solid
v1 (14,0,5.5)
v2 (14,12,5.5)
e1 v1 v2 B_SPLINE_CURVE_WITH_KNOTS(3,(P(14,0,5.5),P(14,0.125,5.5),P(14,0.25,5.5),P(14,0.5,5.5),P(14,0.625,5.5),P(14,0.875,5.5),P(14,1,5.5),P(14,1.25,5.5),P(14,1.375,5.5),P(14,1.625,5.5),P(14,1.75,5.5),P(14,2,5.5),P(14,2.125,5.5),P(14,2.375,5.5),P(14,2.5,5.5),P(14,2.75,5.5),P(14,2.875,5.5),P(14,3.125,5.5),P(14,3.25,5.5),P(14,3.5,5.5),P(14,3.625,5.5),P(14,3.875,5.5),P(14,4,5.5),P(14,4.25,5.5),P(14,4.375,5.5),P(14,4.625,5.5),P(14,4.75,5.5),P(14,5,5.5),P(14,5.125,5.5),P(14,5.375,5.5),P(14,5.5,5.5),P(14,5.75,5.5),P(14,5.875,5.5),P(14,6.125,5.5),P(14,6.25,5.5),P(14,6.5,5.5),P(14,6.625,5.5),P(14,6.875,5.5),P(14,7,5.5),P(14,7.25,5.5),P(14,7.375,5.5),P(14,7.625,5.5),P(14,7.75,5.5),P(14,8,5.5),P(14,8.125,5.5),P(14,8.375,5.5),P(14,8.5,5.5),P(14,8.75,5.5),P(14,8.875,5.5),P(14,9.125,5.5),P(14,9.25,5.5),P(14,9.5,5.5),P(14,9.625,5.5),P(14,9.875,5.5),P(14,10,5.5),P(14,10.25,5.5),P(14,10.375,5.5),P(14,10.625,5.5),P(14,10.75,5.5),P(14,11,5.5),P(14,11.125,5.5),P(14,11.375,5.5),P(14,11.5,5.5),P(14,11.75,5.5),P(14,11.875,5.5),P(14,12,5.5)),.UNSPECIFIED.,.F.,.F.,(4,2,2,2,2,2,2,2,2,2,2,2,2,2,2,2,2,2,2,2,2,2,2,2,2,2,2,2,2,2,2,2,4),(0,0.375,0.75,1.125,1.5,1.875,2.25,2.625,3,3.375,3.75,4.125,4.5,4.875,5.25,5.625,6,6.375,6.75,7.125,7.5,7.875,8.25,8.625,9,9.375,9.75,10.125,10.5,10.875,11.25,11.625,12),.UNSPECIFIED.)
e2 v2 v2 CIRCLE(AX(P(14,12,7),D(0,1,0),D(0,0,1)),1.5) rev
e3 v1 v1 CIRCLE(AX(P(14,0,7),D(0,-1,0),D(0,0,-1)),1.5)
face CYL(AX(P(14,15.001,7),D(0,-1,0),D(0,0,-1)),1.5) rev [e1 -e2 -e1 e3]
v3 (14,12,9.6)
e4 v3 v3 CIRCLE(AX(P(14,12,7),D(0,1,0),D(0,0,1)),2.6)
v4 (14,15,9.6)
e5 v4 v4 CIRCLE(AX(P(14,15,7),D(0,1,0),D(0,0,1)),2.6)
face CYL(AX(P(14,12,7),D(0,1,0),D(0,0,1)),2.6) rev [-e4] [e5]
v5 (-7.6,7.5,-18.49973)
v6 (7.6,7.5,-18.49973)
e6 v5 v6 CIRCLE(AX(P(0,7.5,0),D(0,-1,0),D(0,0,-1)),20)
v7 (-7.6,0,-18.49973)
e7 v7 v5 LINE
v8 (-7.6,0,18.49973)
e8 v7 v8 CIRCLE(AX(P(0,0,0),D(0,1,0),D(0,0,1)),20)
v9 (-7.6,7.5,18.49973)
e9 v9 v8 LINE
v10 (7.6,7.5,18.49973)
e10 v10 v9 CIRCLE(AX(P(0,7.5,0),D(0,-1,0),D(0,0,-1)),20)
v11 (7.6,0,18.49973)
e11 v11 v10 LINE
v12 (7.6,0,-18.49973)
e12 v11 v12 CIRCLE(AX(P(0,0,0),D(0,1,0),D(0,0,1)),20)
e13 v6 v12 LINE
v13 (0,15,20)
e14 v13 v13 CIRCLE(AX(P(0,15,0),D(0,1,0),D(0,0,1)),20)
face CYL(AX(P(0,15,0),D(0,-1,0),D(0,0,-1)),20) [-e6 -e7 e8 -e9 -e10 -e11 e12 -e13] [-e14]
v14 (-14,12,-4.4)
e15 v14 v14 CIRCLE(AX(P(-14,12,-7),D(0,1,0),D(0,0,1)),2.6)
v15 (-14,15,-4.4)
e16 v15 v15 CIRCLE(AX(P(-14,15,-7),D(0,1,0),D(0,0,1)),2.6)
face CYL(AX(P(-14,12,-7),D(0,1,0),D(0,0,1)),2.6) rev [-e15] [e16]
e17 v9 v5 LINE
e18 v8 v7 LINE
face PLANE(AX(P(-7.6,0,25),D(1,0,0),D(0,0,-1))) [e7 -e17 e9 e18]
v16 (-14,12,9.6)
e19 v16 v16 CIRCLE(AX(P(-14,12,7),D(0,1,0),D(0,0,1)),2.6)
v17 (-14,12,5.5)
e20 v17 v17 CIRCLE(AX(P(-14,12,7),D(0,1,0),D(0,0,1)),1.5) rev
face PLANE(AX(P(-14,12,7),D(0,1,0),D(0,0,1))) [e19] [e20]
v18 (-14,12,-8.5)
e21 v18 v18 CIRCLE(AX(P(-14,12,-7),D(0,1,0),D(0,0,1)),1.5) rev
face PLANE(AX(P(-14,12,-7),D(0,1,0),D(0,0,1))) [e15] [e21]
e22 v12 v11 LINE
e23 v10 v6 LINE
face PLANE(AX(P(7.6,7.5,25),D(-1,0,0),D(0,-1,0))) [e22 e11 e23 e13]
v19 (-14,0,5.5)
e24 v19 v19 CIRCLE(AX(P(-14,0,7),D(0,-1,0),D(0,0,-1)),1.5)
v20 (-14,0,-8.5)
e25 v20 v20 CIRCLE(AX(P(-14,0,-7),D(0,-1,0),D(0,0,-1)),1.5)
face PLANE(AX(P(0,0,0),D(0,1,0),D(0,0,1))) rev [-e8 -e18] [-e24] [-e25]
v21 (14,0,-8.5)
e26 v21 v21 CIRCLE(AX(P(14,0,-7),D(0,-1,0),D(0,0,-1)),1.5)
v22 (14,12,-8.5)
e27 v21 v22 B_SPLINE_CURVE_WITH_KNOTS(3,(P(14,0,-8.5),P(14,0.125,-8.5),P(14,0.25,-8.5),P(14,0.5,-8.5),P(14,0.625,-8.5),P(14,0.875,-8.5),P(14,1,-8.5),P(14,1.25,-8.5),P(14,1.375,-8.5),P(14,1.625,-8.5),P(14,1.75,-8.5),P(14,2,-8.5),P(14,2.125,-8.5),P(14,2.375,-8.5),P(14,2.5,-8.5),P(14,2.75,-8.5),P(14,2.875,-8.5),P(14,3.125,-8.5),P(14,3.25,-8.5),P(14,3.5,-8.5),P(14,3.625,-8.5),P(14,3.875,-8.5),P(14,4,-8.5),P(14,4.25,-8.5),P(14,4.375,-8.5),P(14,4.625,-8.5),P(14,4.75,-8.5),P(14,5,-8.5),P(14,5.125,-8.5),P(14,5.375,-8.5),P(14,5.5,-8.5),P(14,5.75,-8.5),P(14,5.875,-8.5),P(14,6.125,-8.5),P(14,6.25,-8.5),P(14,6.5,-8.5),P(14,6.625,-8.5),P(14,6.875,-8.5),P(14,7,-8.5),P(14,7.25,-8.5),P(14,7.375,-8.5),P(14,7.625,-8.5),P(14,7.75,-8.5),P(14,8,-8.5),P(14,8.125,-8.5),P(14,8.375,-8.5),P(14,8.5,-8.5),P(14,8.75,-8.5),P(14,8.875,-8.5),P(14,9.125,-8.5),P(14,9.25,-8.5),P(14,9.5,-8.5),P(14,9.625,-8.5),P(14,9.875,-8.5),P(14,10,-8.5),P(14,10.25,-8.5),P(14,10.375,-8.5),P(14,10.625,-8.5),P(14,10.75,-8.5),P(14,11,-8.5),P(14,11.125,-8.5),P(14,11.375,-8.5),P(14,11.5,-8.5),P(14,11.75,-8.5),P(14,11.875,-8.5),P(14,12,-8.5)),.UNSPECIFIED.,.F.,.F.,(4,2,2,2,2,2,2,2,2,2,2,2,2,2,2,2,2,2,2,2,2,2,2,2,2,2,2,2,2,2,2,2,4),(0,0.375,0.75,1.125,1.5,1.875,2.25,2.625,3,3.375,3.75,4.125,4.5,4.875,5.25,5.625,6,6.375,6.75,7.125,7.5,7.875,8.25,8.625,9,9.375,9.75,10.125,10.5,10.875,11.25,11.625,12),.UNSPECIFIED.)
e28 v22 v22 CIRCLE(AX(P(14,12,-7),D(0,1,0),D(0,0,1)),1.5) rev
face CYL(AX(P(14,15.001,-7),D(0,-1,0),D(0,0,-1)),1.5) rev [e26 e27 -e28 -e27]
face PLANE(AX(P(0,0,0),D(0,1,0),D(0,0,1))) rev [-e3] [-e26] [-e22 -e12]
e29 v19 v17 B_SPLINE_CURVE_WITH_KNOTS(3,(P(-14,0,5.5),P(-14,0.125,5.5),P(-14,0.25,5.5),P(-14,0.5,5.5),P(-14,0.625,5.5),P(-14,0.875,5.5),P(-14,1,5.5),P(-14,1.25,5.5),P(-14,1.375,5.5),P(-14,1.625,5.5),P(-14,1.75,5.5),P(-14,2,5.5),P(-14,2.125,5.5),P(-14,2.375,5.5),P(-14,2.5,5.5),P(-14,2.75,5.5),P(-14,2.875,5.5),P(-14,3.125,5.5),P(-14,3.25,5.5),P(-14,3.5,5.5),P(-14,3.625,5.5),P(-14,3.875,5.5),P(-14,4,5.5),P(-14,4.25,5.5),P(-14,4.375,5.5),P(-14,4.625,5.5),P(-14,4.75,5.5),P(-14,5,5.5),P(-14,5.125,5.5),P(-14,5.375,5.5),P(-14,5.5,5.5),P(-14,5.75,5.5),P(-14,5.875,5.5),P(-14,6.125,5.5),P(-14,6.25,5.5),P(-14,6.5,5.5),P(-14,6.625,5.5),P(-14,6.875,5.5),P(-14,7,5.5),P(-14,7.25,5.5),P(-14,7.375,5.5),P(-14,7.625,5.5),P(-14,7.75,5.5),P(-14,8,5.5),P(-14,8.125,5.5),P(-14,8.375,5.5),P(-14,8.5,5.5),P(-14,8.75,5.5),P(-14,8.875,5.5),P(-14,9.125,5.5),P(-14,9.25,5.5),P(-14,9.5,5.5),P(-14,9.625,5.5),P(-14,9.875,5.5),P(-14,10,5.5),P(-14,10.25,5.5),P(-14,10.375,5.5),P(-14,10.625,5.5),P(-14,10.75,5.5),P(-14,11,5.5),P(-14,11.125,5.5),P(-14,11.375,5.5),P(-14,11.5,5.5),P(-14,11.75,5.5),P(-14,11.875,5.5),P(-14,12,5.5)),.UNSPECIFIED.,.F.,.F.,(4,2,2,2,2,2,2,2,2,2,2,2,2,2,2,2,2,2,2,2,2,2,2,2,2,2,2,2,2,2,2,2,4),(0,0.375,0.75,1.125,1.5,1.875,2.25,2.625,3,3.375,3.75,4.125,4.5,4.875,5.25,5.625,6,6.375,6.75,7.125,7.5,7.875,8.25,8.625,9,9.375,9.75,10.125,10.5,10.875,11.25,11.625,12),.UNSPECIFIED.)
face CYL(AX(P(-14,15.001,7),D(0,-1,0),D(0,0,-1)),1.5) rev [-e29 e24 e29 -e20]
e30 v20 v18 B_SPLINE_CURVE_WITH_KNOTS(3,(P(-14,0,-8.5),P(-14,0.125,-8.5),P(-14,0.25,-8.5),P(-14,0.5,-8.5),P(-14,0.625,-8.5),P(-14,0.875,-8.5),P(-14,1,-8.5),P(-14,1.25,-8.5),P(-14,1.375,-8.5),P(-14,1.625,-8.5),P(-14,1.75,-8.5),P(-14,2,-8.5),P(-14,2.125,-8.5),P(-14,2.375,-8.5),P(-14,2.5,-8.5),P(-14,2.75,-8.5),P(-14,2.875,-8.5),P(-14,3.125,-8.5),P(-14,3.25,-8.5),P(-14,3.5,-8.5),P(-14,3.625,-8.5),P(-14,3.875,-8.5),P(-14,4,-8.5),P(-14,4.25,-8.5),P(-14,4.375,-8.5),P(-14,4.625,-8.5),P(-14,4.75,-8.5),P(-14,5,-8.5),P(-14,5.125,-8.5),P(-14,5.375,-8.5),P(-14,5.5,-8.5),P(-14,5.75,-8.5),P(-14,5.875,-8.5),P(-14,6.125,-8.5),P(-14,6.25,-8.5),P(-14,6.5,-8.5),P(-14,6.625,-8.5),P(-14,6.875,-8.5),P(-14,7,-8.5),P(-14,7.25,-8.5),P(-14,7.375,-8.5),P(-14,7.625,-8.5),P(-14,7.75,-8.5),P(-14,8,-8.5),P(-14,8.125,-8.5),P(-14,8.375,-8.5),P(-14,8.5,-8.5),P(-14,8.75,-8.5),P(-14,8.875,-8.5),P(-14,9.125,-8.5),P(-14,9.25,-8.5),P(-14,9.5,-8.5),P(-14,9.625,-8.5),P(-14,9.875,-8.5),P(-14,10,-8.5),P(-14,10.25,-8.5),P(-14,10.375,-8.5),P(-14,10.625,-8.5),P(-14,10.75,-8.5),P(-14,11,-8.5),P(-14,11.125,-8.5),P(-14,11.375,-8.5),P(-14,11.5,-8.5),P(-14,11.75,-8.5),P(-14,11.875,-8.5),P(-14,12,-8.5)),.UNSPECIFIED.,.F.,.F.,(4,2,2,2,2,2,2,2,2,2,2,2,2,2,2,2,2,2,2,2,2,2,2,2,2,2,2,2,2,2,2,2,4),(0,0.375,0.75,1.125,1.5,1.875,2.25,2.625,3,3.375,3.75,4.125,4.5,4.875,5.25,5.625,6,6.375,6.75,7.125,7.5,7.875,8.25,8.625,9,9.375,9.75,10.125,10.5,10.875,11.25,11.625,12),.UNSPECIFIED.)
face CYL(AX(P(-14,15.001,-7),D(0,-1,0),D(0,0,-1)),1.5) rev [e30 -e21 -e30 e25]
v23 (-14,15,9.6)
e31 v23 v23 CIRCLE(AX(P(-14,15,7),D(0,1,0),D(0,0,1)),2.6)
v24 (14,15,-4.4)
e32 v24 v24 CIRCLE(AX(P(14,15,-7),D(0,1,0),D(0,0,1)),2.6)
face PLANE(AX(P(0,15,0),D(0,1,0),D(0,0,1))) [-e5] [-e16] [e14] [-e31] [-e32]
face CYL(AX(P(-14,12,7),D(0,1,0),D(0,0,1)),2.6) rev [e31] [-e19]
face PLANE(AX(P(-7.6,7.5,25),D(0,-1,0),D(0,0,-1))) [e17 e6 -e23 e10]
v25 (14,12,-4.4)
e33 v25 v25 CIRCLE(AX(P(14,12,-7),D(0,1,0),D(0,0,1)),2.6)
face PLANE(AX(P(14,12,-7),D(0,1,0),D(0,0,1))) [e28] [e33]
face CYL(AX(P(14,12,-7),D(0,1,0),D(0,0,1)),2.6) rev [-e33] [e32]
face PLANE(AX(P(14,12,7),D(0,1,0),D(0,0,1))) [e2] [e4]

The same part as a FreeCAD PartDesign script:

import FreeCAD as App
import Part
import Sketcher

V = App.Vector

doc = App.newDocument("Part")
body = doc.addObject("PartDesign::Body", "Body")

# Sketch on XZ plane
sketch1 = doc.addObject("Sketcher::SketchObject", "Sketch")
body.addObject(sketch1)
sketch1.AttachmentSupport = (doc.XZ_Plane, [""])
sketch1.MapMode = "FlatFace"
sketch1.addGeometry(Part.Circle(V(0, 0, 0), V(0, 0, 1), 20), False)
sketch1.addConstraint([
    Sketcher.Constraint("Coincident", 0, 3, -1, 1),
    Sketcher.Constraint("Diameter", 0, 40.0),
])
pad1 = doc.addObject("PartDesign::Pad", "Pad")
body.addObject(pad1)
pad1.Profile = sketch1
pad1.Length = 15
pad1.Reversed = True

# Sketch on XY plane
sketch2 = doc.addObject("Sketcher::SketchObject", "Sketch001")
body.addObject(sketch2)
sketch2.AttachmentSupport = (doc.XY_Plane, [""])
sketch2.MapMode = "FlatFace"
sketch2.addGeometry([
    Part.LineSegment(V(-7.6, 7.5, 0), V(-7.6, 0, 0)),
    Part.LineSegment(V(-7.6, 0, 0), V(7.6, 0, 0)),
    Part.LineSegment(V(7.6, 0, 0), V(7.6, 7.5, 0)),
    Part.LineSegment(V(7.6, 7.5, 0), V(-7.6, 7.5, 0)),
], False)
sketch2.addConstraint([
    Sketcher.Constraint("Coincident", 0, 2, 1, 1),
    Sketcher.Constraint("Coincident", 1, 2, 2, 1),
    Sketcher.Constraint("Coincident", 2, 2, 3, 1),
    Sketcher.Constraint("Coincident", 3, 2, 0, 1),
    Sketcher.Constraint("Vertical", 0),
    Sketcher.Constraint("Horizontal", 1),
    Sketcher.Constraint("Vertical", 2),
    Sketcher.Constraint("Horizontal", 3),
    Sketcher.Constraint("Symmetric", 0, 2, 1, 2, -1, 1),
    Sketcher.Constraint("DistanceX", 1, 1, 1, 2, 15.2),
    Sketcher.Constraint("DistanceY", 0, 2, 0, 1, 7.5),
])
pocket1 = doc.addObject("PartDesign::Pocket", "Pocket")
body.addObject(pocket1)
pocket1.Profile = sketch2
pocket1.Type = "ThroughAll"
pocket1.Midplane = True

# Sketch on XZ plane
sketch3 = doc.addObject("Sketcher::SketchObject", "Sketch002")
body.addObject(sketch3)
sketch3.AttachmentSupport = (doc.XZ_Plane, [""])
sketch3.MapMode = "FlatFace"
sketch3.addGeometry(Part.Circle(V(-14, 7, 0), V(0, 0, 1), 1.5), False)
sketch3.addConstraint([
    Sketcher.Constraint("Diameter", 0, 3.0),
    Sketcher.Constraint("DistanceX", 0, 3, -1, 1, 14.0),
    Sketcher.Constraint("DistanceY", -1, 1, 0, 3, 7.0),
])
pocket2 = doc.addObject("PartDesign::Pocket", "Pocket001")
body.addObject(pocket2)
pocket2.Profile = sketch3
pocket2.Type = "UpToFirst"

# Sketch on XZ plane
sketch4 = doc.addObject("Sketcher::SketchObject", "Sketch003")
body.addObject(sketch4)
sketch4.AttachmentSupport = (doc.XZ_Plane, [""])
sketch4.MapMode = "FlatFace"
sketch4.addGeometry(Part.Circle(V(-14, -7, 0), V(0, 0, 1), 1.5), False)
sketch4.addConstraint([
    Sketcher.Constraint("Diameter", 0, 3.0),
    Sketcher.Constraint("DistanceX", 0, 3, -1, 1, 14.0),
    Sketcher.Constraint("DistanceY", 0, 3, -1, 1, 7.0),
])
pocket3 = doc.addObject("PartDesign::Pocket", "Pocket002")
body.addObject(pocket3)
pocket3.Profile = sketch4
pocket3.Type = "UpToFirst"

# Sketch on XZ plane
sketch5 = doc.addObject("Sketcher::SketchObject", "Sketch004")
body.addObject(sketch5)
sketch5.AttachmentSupport = (doc.XZ_Plane, [""])
sketch5.MapMode = "FlatFace"
sketch5.addGeometry(Part.Circle(V(14, 7, 0), V(0, 0, 1), 1.5), False)
sketch5.addConstraint([
    Sketcher.Constraint("Diameter", 0, 3.0),
    Sketcher.Constraint("DistanceX", -1, 1, 0, 3, 14.0),
    Sketcher.Constraint("DistanceY", -1, 1, 0, 3, 7.0),
])
pocket4 = doc.addObject("PartDesign::Pocket", "Pocket003")
body.addObject(pocket4)
pocket4.Profile = sketch5
pocket4.Type = "UpToFirst"

# Sketch on XZ plane
sketch6 = doc.addObject("Sketcher::SketchObject", "Sketch005")
body.addObject(sketch6)
sketch6.AttachmentSupport = (doc.XZ_Plane, [""])
sketch6.MapMode = "FlatFace"
sketch6.addGeometry(Part.Circle(V(14, -7, 0), V(0, 0, 1), 1.5), False)
sketch6.addConstraint([
    Sketcher.Constraint("Diameter", 0, 3.0),
    Sketcher.Constraint("DistanceX", -1, 1, 0, 3, 14.0),
    Sketcher.Constraint("DistanceY", 0, 3, -1, 1, 7.0),
])
pocket5 = doc.addObject("PartDesign::Pocket", "Pocket004")
body.addObject(pocket5)
pocket5.Profile = sketch6
pocket5.Type = "UpToFirst"

# Sketch on XZ plane
sketch7 = doc.addObject("Sketcher::SketchObject", "Sketch006")
body.addObject(sketch7)
sketch7.AttachmentSupport = (doc.XZ_Plane, [""])
sketch7.MapMode = "FlatFace"
sketch7.AttachmentOffset = App.Placement(V(0, 0, -15), App.Rotation())
sketch7.addGeometry([
    Part.Circle(V(-14, -7, 0), V(0, 0, 1), 2.6),
    Part.Circle(V(-14, 7, 0), V(0, 0, 1), 2.6),
    Part.Circle(V(14, -7, 0), V(0, 0, 1), 2.6),
    Part.Circle(V(14, 7, 0), V(0, 0, 1), 2.6),
], False)
sketch7.addConstraint([
    Sketcher.Constraint("Equal", 0, 1),
    Sketcher.Constraint("Equal", 1, 2),
    Sketcher.Constraint("Equal", 2, 3),
    Sketcher.Constraint("Symmetric", 1, 3, 2, 3, -1, 1),
    Sketcher.Constraint("Symmetric", 0, 3, 3, 3, -1, 1),
    Sketcher.Constraint("Symmetric", 0, 3, 2, 3, -2),
    Sketcher.Constraint("Diameter", 0, 5.2),
    Sketcher.Constraint("DistanceX", 0, 3, -1, 1, 14.0),
    Sketcher.Constraint("DistanceY", 0, 3, -1, 1, 7.0),
])
pocket6 = doc.addObject("PartDesign::Pocket", "Pocket005")
body.addObject(pocket6)
pocket6.Profile = sketch7
pocket6.Length = 3
pocket6.Reversed = True

doc.recompute()
